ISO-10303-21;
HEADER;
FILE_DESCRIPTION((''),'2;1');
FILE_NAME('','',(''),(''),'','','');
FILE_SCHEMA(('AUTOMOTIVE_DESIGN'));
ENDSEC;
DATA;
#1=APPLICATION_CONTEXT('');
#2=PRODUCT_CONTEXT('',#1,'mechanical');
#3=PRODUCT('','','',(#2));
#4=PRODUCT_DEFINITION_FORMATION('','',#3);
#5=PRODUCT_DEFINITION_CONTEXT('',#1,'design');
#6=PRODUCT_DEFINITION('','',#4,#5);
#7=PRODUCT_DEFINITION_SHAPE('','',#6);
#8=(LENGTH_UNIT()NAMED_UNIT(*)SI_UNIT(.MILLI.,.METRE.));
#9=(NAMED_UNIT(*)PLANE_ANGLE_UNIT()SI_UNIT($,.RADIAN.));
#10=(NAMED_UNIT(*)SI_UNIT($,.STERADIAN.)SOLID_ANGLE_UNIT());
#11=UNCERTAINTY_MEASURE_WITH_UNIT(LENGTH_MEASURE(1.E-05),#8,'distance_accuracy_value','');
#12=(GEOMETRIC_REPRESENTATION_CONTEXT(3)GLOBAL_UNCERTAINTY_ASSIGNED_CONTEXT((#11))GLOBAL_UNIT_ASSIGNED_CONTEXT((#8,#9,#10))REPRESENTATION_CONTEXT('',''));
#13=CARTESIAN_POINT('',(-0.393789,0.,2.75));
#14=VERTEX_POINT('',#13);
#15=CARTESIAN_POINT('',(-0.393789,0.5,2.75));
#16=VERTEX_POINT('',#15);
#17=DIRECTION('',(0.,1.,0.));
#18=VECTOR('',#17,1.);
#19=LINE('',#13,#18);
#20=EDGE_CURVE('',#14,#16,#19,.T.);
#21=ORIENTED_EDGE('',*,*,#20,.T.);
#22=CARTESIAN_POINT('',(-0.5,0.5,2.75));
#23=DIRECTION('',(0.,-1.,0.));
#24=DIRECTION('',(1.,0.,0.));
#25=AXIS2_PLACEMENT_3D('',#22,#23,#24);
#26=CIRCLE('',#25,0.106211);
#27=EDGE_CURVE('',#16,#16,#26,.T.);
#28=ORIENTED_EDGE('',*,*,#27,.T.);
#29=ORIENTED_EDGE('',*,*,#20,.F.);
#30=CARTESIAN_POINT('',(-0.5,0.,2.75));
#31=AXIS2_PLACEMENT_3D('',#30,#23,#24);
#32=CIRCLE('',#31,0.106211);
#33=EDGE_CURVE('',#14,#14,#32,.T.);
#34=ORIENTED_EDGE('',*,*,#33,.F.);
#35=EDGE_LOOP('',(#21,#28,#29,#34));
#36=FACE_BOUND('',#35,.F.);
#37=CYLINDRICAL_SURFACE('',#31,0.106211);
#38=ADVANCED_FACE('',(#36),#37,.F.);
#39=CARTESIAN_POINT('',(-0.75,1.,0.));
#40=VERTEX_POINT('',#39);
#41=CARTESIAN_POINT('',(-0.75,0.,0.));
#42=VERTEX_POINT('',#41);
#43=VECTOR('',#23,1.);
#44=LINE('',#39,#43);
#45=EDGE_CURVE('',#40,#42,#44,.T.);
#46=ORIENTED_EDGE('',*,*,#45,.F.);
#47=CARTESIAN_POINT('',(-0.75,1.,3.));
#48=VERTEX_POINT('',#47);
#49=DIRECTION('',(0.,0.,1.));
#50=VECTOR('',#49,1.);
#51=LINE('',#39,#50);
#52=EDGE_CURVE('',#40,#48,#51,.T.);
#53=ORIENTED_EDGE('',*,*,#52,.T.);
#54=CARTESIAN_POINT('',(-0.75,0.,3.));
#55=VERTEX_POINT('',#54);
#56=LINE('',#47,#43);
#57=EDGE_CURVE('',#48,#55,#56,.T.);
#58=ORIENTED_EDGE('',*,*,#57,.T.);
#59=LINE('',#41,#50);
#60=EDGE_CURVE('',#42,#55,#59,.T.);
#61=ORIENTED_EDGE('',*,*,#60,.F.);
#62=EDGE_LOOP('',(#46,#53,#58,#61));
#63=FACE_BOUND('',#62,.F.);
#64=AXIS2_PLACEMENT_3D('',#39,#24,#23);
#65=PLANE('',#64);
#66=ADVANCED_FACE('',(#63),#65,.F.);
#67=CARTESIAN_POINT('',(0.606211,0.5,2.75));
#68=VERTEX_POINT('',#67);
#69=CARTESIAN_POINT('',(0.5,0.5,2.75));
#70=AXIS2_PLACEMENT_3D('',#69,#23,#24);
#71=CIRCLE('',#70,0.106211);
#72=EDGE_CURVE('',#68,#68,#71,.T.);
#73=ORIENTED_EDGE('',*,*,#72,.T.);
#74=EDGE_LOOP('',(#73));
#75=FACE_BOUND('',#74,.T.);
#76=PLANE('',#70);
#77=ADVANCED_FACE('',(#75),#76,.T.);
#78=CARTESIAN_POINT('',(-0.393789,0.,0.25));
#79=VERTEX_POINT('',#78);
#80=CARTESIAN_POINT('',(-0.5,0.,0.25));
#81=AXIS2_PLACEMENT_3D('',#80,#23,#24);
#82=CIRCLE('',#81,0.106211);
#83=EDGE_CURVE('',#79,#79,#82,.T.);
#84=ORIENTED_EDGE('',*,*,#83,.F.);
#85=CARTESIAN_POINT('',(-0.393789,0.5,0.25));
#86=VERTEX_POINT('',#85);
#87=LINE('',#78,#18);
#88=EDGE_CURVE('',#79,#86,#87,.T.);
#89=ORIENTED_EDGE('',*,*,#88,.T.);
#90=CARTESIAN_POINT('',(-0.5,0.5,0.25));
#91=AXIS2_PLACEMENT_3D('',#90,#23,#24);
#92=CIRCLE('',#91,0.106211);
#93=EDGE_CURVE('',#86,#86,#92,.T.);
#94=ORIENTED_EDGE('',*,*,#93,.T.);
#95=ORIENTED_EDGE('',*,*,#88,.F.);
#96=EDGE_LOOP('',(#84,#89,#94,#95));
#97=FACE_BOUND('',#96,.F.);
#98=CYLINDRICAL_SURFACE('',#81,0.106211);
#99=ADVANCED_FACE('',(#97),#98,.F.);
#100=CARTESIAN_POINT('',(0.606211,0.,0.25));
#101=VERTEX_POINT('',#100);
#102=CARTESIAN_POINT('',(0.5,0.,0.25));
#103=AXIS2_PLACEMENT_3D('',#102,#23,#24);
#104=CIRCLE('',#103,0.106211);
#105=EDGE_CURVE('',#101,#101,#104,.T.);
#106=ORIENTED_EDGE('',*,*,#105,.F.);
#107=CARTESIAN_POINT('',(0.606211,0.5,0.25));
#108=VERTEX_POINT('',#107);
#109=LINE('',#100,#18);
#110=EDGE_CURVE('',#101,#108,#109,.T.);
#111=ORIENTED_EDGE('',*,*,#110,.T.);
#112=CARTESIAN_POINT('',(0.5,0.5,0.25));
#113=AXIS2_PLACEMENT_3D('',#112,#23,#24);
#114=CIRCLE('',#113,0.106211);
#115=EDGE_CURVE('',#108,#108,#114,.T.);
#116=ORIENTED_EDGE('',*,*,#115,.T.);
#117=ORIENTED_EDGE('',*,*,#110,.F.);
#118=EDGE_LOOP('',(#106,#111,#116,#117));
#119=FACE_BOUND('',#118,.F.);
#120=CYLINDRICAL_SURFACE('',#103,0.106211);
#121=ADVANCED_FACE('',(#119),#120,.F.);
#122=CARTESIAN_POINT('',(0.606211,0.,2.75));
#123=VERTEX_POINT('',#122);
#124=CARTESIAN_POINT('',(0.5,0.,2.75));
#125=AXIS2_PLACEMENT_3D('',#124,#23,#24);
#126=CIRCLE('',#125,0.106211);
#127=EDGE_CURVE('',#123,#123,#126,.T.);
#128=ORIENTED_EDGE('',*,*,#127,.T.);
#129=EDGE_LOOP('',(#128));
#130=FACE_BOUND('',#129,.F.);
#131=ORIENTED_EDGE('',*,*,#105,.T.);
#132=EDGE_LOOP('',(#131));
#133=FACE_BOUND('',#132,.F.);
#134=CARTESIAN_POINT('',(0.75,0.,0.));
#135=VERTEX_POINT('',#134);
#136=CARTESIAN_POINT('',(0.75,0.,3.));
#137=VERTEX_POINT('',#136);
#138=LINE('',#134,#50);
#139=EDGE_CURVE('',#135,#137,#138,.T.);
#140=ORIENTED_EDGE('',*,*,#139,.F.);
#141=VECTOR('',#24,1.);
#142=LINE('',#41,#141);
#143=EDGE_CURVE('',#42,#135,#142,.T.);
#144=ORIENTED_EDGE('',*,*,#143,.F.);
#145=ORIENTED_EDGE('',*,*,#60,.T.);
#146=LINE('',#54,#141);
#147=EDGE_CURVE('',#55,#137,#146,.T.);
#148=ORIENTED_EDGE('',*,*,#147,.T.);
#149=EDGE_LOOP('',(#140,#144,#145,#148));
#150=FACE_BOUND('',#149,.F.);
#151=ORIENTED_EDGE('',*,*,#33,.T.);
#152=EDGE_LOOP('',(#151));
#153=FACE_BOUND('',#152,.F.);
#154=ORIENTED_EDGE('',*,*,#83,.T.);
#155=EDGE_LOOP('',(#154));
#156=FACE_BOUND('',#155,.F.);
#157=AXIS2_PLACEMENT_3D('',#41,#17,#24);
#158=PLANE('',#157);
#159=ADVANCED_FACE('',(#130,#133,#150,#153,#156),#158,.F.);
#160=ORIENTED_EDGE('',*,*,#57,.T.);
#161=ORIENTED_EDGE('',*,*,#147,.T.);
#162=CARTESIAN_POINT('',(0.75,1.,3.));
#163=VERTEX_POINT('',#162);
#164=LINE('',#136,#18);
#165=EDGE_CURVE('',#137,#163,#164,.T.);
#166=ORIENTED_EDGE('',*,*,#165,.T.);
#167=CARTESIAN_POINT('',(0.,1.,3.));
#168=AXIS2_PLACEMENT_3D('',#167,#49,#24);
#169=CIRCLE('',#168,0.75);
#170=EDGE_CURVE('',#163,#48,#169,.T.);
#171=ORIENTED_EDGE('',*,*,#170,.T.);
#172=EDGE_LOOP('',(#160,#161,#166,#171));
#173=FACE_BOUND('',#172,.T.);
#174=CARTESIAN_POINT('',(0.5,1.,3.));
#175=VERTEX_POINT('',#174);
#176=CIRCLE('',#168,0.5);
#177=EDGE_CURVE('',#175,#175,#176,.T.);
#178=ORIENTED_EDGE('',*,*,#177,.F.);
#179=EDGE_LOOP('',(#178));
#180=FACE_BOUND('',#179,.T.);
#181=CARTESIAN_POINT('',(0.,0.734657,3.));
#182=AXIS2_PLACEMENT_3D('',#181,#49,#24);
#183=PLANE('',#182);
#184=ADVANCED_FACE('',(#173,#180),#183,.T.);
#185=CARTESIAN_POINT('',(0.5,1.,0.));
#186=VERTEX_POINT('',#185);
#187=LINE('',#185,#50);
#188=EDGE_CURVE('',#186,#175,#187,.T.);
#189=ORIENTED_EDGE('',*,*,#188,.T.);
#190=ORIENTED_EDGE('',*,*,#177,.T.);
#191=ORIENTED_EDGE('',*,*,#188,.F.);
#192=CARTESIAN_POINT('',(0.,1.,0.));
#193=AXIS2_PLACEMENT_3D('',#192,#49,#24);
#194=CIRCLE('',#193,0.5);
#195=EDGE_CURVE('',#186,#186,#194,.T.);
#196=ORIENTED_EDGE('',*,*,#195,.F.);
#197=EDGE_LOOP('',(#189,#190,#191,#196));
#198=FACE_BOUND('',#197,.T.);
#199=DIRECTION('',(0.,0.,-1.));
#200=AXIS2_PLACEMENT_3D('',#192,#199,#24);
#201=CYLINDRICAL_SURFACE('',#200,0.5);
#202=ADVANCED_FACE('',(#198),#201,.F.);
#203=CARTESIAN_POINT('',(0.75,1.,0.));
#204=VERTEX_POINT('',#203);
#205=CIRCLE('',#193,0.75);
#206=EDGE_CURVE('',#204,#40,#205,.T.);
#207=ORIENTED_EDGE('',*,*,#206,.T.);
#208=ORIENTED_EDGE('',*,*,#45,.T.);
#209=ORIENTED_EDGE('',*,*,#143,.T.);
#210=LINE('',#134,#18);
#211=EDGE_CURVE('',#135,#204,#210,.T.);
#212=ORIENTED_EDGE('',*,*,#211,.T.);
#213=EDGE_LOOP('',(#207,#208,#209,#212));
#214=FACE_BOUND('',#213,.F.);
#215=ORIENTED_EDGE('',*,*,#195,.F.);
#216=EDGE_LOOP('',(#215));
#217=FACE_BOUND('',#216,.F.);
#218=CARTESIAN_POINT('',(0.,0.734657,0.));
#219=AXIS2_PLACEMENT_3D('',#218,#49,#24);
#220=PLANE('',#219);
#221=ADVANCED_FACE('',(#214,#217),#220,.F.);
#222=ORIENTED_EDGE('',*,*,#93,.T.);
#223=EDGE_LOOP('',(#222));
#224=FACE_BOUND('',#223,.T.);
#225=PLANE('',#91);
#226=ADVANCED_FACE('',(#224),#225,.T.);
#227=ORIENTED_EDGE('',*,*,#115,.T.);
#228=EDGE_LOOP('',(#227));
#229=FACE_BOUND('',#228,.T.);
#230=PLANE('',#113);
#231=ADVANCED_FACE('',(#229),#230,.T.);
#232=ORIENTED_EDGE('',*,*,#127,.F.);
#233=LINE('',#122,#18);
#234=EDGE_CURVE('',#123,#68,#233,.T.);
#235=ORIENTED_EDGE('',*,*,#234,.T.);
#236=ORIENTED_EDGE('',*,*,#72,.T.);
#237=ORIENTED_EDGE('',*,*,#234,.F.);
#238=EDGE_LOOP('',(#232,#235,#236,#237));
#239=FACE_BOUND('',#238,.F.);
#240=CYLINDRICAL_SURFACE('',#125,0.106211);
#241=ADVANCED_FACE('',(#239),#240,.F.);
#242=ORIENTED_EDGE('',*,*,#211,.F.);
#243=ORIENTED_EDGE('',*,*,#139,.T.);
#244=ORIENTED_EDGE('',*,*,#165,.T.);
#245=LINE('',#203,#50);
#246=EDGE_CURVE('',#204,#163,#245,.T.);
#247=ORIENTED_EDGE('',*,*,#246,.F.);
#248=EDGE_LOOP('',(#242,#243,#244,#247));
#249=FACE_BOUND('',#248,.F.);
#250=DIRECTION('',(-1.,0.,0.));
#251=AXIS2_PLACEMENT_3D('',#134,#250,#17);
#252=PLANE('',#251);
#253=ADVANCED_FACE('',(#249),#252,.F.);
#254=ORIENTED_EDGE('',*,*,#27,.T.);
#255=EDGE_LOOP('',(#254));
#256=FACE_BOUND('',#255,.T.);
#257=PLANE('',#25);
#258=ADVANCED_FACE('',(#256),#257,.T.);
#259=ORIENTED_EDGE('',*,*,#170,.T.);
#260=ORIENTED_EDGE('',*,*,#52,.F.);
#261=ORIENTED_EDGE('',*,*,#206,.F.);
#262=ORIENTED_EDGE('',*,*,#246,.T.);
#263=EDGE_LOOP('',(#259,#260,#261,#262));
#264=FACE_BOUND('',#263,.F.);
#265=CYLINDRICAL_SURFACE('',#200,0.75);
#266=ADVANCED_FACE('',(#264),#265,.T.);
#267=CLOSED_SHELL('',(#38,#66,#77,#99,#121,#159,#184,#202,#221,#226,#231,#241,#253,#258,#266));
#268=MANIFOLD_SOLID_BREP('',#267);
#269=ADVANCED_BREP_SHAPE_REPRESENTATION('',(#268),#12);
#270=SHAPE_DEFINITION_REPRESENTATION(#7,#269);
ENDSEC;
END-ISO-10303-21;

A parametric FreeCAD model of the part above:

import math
import FreeCAD as App
import Part
import Sketcher
Q = App.Units.Quantity

doc = App.newDocument("Part")
body = doc.addObject("PartDesign::Body", "Body")

sketch1 = body.newObject("Sketcher::SketchObject", "Sketch")
sketch1.AttachmentSupport = (doc.getObject("XY_Plane"), [""])
sketch1.MapMode = "FlatFace"
sketch1.addGeometry(Part.LineSegment(App.Vector(-0.75, 1, 0), App.Vector(-0.75, 0, 0)), False)
sketch1.addGeometry(Part.LineSegment(App.Vector(-0.75, 0, 0), App.Vector(0.75, 0, 0)), False)
sketch1.addGeometry(Part.LineSegment(App.Vector(0.75, 0, 0), App.Vector(0.75, 1, 0)), False)
sketch1.addGeometry(Part.ArcOfCircle(Part.Circle(App.Vector(0, 1, 0), App.Vector(0, 0, 1), 0.75), math.radians(0), math.radians(180)), False)
sketch1.addGeometry(Part.Circle(App.Vector(0, 1, 0), App.Vector(0, 0, 1), 0.5), False)
sketch1.addConstraint(Sketcher.Constraint("Coincident", 0, 2, 1, 1))
sketch1.addConstraint(Sketcher.Constraint("Coincident", 1, 2, 2, 1))
sketch1.addConstraint(Sketcher.Constraint("Tangent", 2, 2, 3, 1))
sketch1.addConstraint(Sketcher.Constraint("Tangent", 3, 2, 0, 1))
sketch1.addConstraint(Sketcher.Constraint("Vertical", 0))
sketch1.addConstraint(Sketcher.Constraint("Horizontal", 1))
sketch1.addConstraint(Sketcher.Constraint("Vertical", 2))
sketch1.addConstraint(Sketcher.Constraint("Coincident", 4, 3, 3, 3))
sketch1.addConstraint(Sketcher.Constraint("Symmetric", 0, 2, 1, 2, -1, 1))
sketch1.addConstraint(Sketcher.Constraint("Diameter", 4, Q("1 mm")))
sketch1.addConstraint(Sketcher.Constraint("DistanceY", 0, 2, 0, 1, Q("1 mm")))
sketch1.addConstraint(Sketcher.Constraint("Radius", 3, Q("0.75 mm")))
pad1 = body.newObject("PartDesign::Pad", "Pad")
pad1.Profile = sketch1
pad1.Length = 3

sketch2 = body.newObject("Sketcher::SketchObject", "Sketch001")
sketch2.AttachmentSupport = (doc.getObject("XZ_Plane"), [""])
sketch2.MapMode = "FlatFace"
sketch2.addGeometry(Part.Circle(App.Vector(-0.5, 2.75, 0), App.Vector(0, 0, 1), 0.106211), False)
sketch2.addGeometry(Part.Circle(App.Vector(0.5, 0.25, 0), App.Vector(0, 0, 1), 0.106211), False)
sketch2.addGeometry(Part.Circle(App.Vector(-0.5, 0.25, 0), App.Vector(0, 0, 1), 0.106211), False)
sketch2.addGeometry(Part.Circle(App.Vector(0.5, 2.75, 0), App.Vector(0, 0, 1), 0.106211), False)
sketch2.addConstraint(Sketcher.Constraint("Equal", 0, 1))
sketch2.addConstraint(Sketcher.Constraint("Equal", 1, 2))
sketch2.addConstraint(Sketcher.Constraint("Equal", 2, 3))
sketch2.addConstraint(Sketcher.Constraint("Symmetric", 1, 3, 2, 3, -2))
sketch2.addConstraint(Sketcher.Constraint("Symmetric", 0, 3, 3, 3, -2))
sketch2.addConstraint(Sketcher.Constraint("Vertical", 0, 3, 2, 3))
sketch2.addConstraint(Sketcher.Constraint("DistanceX", 0, 3, 1, 3, Q("1 mm")))
sketch2.addConstraint(Sketcher.Constraint("DistanceY", 1, 3, 0, 3, Q("2.5 mm")))
sketch2.addConstraint(Sketcher.Constraint("DistanceY", -1, 1, 0, 3, Q("2.75 mm")))
sketch2.addConstraint(Sketcher.Constraint("Diameter", 0, Q("0.212422 mm")))
pocket1 = body.newObject("PartDesign::Pocket", "Pocket")
pocket1.Profile = sketch2
pocket1.Length = 0.5

doc.recompute()
